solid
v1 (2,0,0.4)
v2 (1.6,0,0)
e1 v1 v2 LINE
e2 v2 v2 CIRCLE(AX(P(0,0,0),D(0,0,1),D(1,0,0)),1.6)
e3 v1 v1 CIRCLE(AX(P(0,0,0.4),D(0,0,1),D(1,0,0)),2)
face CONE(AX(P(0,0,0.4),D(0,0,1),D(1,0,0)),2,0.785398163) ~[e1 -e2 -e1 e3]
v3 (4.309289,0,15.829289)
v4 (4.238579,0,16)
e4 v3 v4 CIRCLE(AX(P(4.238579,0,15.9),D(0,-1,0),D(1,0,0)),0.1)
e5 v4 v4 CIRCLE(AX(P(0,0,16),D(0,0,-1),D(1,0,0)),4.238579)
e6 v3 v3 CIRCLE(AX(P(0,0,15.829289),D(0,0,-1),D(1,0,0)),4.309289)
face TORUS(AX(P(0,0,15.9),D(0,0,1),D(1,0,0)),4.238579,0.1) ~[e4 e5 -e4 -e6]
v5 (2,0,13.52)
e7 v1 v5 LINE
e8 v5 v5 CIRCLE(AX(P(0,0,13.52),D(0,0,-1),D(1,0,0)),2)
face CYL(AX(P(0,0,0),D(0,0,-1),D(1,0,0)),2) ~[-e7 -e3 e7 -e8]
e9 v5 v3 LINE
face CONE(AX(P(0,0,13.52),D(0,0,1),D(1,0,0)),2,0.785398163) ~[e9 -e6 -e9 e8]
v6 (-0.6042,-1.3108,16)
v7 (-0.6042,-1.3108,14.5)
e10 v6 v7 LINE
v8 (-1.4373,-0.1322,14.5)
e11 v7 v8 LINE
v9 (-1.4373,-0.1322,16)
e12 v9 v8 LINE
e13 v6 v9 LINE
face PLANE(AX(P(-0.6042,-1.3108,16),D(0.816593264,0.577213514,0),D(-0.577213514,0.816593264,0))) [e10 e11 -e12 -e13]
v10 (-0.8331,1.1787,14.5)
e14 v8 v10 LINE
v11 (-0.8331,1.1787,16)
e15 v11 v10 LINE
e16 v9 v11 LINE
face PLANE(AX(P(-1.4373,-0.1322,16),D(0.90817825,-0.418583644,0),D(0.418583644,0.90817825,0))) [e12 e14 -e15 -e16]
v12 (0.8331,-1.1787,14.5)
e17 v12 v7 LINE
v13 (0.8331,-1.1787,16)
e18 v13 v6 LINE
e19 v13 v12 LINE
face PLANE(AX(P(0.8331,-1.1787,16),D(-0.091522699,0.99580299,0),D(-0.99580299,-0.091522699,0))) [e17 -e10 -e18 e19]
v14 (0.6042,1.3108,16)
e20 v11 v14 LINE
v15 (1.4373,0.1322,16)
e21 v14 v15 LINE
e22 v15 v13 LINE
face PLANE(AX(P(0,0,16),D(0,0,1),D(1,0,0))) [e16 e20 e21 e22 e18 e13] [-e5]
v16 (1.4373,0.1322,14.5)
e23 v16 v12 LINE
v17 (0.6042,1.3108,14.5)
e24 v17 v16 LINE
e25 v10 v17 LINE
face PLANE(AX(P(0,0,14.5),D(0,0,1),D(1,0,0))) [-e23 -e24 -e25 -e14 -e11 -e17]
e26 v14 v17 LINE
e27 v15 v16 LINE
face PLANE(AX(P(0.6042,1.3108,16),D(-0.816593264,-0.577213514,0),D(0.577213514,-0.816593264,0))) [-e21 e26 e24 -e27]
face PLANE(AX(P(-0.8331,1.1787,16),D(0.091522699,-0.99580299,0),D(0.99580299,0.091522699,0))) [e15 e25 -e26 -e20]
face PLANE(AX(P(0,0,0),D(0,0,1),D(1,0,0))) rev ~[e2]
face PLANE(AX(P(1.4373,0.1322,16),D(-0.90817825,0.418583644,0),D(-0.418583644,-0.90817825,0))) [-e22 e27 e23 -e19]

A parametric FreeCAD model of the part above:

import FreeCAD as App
import Part
import Sketcher
from FreeCAD import Vector
Q = App.Units.Quantity


def edges_at(feature, points):
    """Names of the edges that pass closest to the given points."""
    edges = feature.Shape.Edges
    near = lambda p: min(range(len(edges)), key=lambda i: edges[i].distToShape(Part.Vertex(*p))[0])
    return sorted({f"Edge{near(p) + 1}" for p in points})


def add_polygon(sketch, points):
    """Adds a closed chain of lines whose ends are joined by coincident constraints."""
    first, n = sketch.GeometryCount, len(points)
    for a, b in zip(points, points[1:] + points[:1]):
        sketch.addGeometry(Part.LineSegment(App.Vector(*a, 0), App.Vector(*b, 0)), False)
    for i in range(n):
        sketch.addConstraint(Sketcher.Constraint("Coincident", first + i, 2, first + (i + 1) % n, 1))

doc = App.newDocument("Part")
params = doc.addObject("Spreadsheet::Sheet", "Params")
for row, (alias, value) in enumerate([
    ("sketch1_diameter", "4 mm"),
    ("pad1_length", "13.52 mm"),
    ("sketch2_diameter", "4 mm"),
    ("pad2_length", "2.48 mm"),
    ("pad2_taper", "45 deg"),
    ("pocket1_length", "1.5 mm"),
    ("chamfer_size", "0.4 mm"),
    ("fillet_radius", "0.1 mm"),
], start=1):
    params.set(f"A{row}", alias)
    params.set(f"B{row}", "=" + value)
    params.setAlias(f"B{row}", alias)

body = doc.addObject("PartDesign::Body", "Body")

# Sketch on XY plane
sketch1 = body.newObject("Sketcher::SketchObject", "Sketch")
sketch1.AttachmentSupport = (doc.getObject("XY_Plane"), [""])
sketch1.MapMode = "FlatFace"
sketch1.addGeometry(Part.Circle(Vector(0, 0, 0), Vector(0, 0, 1), 2), False)
sketch1.addConstraint([
    Sketcher.Constraint("Coincident", 0, 3, -1, 1),
    Sketcher.Constraint("Diameter", 0, Q("4 mm")),
])
sketch1.setExpression("Constraints[1]", "Params.sketch1_diameter")
pad1 = body.newObject("PartDesign::Pad", "Pad")
pad1.Profile = sketch1
pad1.setExpression("Length", "Params.pad1_length")

# Sketch on XY plane
sketch2 = body.newObject("Sketcher::SketchObject", "Sketch001")
sketch2.AttachmentSupport = (doc.getObject("XY_Plane"), [""])
sketch2.MapMode = "FlatFace"
sketch2.AttachmentOffset = App.Placement(Vector(0, 0, 13.52), App.Rotation())
sketch2.addGeometry(Part.Circle(Vector(0, 0, 0), Vector(0, 0, 1), 2), False)
sketch2.addConstraint([
    Sketcher.Constraint("Coincident", 0, 3, -1, 1),
    Sketcher.Constraint("Diameter", 0, Q("4 mm")),
])
sketch2.setExpression("Constraints[1]", "Params.sketch2_diameter")
pad2 = body.newObject("PartDesign::Pad", "Pad001")
pad2.Profile = sketch2
pad2.setExpression("Length", "Params.pad2_length")
pad2.setExpression("TaperAngle", "Params.pad2_taper")

# Sketch on XY plane
sketch3 = body.newObject("Sketcher::SketchObject", "Sketch002")
sketch3.AttachmentSupport = (doc.getObject("XY_Plane"), [""])
sketch3.MapMode = "FlatFace"
sketch3.AttachmentOffset = App.Placement(Vector(0, 0, 16), App.Rotation())
add_polygon(sketch3, [(1.4373, 0.1322), (0.6042, 1.3108), (-0.8331, 1.1787), (-1.4373, -0.1322), (-0.6042, -1.3108), (0.8331, -1.1787)])  # lines 0-5
sketch3.addConstraint([
    Sketcher.Constraint("Symmetric", 0, 2, 3, 2, -1, 1),
    Sketcher.Constraint("Symmetric", 1, 2, 4, 2, -1, 1),
    Sketcher.Constraint("Symmetric", 2, 2, 5, 2, -1, 1),
    Sketcher.Constraint("Equal", 0, 1),
    Sketcher.Constraint("Equal", 1, 2),
    Sketcher.Constraint("DistanceX", 1, 2, -1, 1, Q("0.833 mm")),
    Sketcher.Constraint("DistanceY", 1, 2, 0, 2, Q("0.132 mm")),
    Sketcher.Constraint("DistanceY", 2, 2, 1, 2, Q("1.311 mm")),
    Sketcher.Constraint("DistanceX", 2, 2, 3, 2, Q("0.833 mm")),
])
pocket1 = body.newObject("PartDesign::Pocket", "Pocket")
pocket1.Profile = sketch3
pocket1.setExpression("Length", "Params.pocket1_length")
doc.recompute()

chamfer = body.newObject("PartDesign::Chamfer", "Chamfer")
chamfer.Base = (pocket1, edges_at(pocket1, [(-2, 0, 0)]))
chamfer.setExpression("Size", "Params.chamfer_size")
doc.recompute()

fillet = body.newObject("PartDesign::Fillet", "Fillet")
fillet.Base = (chamfer, edges_at(chamfer, [(-4.48, 0, 16)]))
fillet.setExpression("Radius", "Params.fillet_radius")

doc.recompute()
